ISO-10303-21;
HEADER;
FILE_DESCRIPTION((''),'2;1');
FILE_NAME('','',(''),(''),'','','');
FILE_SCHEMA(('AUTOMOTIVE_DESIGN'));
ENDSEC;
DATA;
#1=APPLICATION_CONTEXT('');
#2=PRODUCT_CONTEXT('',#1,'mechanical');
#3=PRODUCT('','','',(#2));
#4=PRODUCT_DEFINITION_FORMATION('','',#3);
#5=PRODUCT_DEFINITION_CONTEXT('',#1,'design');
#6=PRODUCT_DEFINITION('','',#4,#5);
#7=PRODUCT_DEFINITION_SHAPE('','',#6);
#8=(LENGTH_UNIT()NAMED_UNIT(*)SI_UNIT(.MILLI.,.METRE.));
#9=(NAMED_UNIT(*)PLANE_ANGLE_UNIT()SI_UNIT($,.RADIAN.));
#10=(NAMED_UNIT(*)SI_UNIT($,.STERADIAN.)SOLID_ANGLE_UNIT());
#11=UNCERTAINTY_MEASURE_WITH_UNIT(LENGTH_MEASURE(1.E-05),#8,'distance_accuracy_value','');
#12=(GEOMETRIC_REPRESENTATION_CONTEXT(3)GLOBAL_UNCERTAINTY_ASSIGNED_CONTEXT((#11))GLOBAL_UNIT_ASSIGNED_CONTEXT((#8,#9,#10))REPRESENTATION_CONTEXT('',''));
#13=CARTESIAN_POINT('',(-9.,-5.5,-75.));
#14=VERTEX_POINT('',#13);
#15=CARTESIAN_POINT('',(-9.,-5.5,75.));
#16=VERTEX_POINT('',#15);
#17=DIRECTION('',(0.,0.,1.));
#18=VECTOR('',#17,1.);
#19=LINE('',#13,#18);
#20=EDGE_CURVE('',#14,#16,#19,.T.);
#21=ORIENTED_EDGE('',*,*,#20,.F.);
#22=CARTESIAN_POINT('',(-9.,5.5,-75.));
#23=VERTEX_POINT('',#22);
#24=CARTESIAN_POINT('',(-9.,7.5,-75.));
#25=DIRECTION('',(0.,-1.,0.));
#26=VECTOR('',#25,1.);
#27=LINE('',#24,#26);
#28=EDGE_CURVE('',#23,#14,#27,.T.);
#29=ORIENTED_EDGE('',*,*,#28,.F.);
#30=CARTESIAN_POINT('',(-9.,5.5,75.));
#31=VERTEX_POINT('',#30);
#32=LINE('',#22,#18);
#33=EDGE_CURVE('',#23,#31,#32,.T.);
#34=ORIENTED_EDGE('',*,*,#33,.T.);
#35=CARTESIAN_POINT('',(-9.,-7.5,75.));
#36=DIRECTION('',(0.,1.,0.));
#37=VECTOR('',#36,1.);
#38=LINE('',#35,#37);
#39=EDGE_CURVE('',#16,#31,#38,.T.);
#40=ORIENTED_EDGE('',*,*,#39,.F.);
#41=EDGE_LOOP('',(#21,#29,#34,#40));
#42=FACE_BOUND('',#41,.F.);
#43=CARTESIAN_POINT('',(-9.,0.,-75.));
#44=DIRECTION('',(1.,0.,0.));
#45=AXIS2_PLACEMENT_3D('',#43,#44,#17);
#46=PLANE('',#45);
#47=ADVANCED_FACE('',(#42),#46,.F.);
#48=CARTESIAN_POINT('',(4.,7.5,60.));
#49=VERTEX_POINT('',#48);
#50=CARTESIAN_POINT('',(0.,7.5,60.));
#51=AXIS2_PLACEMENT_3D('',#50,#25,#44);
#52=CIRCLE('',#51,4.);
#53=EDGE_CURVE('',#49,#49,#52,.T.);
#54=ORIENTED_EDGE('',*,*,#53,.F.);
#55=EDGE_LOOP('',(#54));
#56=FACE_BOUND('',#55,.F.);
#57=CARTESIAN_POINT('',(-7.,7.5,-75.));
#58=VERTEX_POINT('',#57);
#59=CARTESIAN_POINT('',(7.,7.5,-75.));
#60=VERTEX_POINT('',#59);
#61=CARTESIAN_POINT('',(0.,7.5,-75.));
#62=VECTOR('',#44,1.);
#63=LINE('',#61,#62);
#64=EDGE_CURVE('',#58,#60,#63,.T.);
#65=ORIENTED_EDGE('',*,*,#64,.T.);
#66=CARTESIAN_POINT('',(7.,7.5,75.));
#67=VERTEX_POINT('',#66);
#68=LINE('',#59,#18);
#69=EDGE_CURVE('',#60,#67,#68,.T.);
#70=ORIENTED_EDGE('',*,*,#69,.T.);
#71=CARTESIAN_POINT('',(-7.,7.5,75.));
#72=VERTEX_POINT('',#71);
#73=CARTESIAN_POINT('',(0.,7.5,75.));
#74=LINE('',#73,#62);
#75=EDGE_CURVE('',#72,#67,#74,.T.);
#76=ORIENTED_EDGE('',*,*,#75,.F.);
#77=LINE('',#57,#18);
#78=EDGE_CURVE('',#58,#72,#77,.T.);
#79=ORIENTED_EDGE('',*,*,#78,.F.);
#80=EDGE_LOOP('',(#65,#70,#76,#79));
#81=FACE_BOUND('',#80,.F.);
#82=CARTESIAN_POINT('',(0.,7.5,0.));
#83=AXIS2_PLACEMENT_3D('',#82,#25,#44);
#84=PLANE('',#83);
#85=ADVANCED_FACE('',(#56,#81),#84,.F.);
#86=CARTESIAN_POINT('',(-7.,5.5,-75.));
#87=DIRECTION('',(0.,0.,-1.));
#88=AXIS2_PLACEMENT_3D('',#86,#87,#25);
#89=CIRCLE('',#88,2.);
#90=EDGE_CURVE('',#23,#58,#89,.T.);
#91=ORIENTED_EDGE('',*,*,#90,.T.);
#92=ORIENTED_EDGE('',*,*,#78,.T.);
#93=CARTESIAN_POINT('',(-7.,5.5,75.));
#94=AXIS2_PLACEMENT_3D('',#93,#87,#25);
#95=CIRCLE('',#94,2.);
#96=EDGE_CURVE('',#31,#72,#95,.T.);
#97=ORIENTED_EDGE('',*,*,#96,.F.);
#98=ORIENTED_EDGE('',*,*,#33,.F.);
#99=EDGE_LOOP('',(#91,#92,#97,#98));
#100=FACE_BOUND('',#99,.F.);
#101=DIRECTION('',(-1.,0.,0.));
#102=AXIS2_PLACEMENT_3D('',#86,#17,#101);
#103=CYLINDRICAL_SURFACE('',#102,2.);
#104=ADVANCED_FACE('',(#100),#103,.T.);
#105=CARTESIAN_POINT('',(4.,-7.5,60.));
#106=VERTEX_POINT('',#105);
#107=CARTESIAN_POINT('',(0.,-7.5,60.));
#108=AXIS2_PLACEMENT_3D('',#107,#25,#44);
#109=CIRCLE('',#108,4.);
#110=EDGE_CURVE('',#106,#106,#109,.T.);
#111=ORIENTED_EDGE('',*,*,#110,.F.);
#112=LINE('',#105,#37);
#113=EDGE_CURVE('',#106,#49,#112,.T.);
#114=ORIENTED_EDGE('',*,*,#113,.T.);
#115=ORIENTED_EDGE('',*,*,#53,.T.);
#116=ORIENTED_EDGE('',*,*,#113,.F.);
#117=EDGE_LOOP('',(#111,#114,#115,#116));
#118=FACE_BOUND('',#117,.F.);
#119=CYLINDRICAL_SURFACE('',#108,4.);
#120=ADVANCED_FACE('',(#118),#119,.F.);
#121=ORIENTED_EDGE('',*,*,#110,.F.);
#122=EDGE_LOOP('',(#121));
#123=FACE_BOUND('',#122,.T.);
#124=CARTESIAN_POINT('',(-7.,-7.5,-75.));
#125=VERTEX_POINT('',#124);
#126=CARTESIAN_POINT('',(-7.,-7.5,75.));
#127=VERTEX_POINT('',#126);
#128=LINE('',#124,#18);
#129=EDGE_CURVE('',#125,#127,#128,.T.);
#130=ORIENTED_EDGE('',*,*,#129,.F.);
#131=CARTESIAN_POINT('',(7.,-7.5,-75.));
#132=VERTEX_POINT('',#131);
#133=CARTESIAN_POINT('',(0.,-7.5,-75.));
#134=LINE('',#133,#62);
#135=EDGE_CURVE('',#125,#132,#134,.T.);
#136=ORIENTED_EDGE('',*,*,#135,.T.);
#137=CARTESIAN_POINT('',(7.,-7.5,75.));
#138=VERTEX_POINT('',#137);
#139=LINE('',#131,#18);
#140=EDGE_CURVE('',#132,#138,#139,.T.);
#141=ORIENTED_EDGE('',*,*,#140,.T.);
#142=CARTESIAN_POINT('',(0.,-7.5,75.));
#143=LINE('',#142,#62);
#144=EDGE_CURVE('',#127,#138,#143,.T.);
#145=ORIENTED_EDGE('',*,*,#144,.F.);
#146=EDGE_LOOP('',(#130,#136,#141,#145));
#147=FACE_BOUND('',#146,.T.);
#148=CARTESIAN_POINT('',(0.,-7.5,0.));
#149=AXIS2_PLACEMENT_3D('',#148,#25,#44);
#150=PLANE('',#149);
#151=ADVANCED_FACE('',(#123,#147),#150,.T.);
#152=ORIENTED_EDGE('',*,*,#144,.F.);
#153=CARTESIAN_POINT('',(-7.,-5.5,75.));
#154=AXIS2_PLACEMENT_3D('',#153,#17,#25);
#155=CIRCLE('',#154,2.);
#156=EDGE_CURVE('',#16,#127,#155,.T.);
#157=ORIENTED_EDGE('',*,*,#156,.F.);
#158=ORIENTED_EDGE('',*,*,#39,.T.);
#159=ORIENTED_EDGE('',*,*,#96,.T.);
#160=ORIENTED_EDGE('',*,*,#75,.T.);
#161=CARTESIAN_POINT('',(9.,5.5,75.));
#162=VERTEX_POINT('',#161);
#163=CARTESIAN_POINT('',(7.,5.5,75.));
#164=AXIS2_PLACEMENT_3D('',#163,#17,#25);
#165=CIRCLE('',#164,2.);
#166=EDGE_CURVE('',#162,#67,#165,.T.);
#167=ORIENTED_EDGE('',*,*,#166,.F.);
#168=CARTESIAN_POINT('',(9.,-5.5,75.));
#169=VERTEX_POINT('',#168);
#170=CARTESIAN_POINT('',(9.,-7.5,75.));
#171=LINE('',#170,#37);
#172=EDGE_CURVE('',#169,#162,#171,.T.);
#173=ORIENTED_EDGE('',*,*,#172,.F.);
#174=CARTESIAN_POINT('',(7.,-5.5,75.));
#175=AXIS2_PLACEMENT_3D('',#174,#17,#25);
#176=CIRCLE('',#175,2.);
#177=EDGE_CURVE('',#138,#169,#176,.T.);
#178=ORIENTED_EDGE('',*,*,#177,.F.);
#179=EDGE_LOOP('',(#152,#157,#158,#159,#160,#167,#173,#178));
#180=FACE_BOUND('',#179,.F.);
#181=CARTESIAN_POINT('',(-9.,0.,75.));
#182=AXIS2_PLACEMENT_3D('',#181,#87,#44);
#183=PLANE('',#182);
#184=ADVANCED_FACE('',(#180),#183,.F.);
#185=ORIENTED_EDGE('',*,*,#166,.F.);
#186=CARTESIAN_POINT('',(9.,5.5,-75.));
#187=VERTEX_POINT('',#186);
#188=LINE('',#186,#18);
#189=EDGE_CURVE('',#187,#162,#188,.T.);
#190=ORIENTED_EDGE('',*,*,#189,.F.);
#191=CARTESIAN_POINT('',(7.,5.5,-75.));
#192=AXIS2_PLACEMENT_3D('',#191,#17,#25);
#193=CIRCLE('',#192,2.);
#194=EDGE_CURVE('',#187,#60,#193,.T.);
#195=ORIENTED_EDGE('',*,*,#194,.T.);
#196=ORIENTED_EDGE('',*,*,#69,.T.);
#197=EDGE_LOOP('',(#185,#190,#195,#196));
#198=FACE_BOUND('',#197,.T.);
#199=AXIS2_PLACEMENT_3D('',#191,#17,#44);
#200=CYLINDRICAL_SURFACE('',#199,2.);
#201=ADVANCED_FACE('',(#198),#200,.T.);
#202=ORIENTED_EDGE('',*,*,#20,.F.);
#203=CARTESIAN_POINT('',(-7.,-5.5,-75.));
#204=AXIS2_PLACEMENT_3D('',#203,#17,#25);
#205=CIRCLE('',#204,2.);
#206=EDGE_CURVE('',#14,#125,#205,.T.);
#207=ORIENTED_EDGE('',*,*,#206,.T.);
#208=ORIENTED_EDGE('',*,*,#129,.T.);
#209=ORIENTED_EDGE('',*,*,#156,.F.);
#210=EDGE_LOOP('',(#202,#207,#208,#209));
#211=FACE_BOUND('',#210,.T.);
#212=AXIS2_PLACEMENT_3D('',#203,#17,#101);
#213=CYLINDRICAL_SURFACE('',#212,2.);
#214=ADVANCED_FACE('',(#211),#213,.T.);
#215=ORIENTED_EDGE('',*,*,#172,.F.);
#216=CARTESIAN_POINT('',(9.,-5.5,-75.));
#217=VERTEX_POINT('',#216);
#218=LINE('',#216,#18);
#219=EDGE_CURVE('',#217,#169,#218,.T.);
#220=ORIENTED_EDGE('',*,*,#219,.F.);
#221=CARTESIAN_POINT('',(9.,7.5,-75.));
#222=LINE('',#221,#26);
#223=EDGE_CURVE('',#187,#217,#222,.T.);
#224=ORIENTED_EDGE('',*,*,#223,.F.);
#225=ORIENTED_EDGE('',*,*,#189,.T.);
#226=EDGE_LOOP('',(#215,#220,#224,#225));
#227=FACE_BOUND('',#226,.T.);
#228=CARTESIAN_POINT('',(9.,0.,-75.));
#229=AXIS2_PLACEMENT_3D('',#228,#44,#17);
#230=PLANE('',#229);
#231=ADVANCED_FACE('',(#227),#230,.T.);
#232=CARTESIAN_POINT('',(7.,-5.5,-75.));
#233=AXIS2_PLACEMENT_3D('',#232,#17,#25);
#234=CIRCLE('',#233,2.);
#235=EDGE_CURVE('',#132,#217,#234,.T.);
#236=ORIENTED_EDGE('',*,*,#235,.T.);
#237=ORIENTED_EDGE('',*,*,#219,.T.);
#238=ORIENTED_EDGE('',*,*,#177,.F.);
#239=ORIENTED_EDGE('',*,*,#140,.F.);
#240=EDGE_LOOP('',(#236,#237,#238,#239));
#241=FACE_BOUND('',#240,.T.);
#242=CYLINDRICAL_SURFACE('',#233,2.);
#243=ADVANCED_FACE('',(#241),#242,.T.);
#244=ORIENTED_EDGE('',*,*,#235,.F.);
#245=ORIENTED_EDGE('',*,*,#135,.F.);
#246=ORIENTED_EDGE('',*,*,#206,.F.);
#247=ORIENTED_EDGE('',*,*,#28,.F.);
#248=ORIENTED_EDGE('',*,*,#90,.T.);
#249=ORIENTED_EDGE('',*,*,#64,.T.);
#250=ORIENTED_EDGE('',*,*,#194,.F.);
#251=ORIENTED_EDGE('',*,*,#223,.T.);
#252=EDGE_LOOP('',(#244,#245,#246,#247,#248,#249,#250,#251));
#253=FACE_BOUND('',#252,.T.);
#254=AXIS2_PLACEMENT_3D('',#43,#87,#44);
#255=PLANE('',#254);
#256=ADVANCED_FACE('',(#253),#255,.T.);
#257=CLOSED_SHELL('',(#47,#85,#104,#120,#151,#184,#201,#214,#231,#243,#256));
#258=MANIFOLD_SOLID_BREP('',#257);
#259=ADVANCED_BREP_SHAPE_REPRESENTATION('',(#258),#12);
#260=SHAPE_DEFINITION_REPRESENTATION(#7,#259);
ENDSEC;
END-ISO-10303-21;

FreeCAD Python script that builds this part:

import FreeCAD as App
import Part
import Sketcher
from FreeCAD import Vector
Q = App.Units.Quantity


def edges_at(feature, points):
    """Names of the edges that pass closest to the given points."""
    edges = feature.Shape.Edges
    near = lambda p: min(range(len(edges)), key=lambda i: edges[i].distToShape(Part.Vertex(*p))[0])
    return sorted({f"Edge{near(p) + 1}" for p in points})


def add_polygon(sketch, points):
    """Adds a closed chain of lines whose ends are joined by coincident constraints."""
    first, n = sketch.GeometryCount, len(points)
    for a, b in zip(points, points[1:] + points[:1]):
        sketch.addGeometry(Part.LineSegment(App.Vector(*a, 0), App.Vector(*b, 0)), False)
    for i in range(n):
        sketch.addConstraint(Sketcher.Constraint("Coincident", first + i, 2, first + (i + 1) % n, 1))

doc = App.newDocument("Part")
params = doc.addObject("Spreadsheet::Sheet", "Params")
for row, (alias, value) in enumerate([
    ("sketch1_width", "18 mm"),
    ("sketch1_height", "150 mm"),
    ("pad1_length", "15 mm"),
    ("fillet_radius", "2 mm"),
    ("sketch2_diameter", "8 mm"),
    ("pocket1_length", "25.4 mm"),
], start=1):
    params.set(f"A{row}", alias)
    params.set(f"B{row}", "=" + value)
    params.setAlias(f"B{row}", alias)

body = doc.addObject("PartDesign::Body", "Body")

sketch1 = body.newObject("Sketcher::SketchObject", "Sketch")
sketch1.AttachmentSupport = (doc.getObject("XZ_Plane"), [""])
sketch1.MapMode = "FlatFace"
add_polygon(sketch1, [(-9, 75), (-9, -75), (9, -75), (9, 75)])
sketch1.addConstraint([
    Sketcher.Constraint("Vertical", 0),
    Sketcher.Constraint("Horizontal", 1),
    Sketcher.Constraint("Vertical", 2),
    Sketcher.Constraint("Horizontal", 3),
    Sketcher.Constraint("Symmetric", 0, 2, 2, 2, -1, 1),
    Sketcher.Constraint("DistanceX", 1, 1, 1, 2, Q("18 mm")),
    Sketcher.Constraint("DistanceY", 0, 2, 0, 1, Q("150 mm")),
])
sketch1.setExpression("Constraints[9]", "Params.sketch1_width")
sketch1.setExpression("Constraints[10]", "Params.sketch1_height")
pad1 = body.newObject("PartDesign::Pad", "Pad")
pad1.Profile = sketch1
pad1.setExpression("Length", "Params.pad1_length")
pad1.Midplane = True
doc.recompute()

fillet = body.newObject("PartDesign::Fillet", "Fillet")
fillet.Base = (pad1, edges_at(pad1, [
    (-9, -7.5, 0),
    (9, -7.5, 0),
    (9, 7.5, 0),
    (-9, 7.5, 0),
]))
fillet.setExpression("Radius", "Params.fillet_radius")

sketch2 = body.newObject("Sketcher::SketchObject", "Sketch001")
sketch2.AttachmentSupport = (doc.getObject("XZ_Plane"), [""])
sketch2.MapMode = "FlatFace"
sketch2.AttachmentOffset = App.Placement(Vector(0, 0, 7.5), App.Rotation())
sketch2.addGeometry(Part.Circle(Vector(0, 60, 0), Vector(0, 0, 1), 4), False)
sketch2.addConstraint([
    Sketcher.Constraint("PointOnObject", 0, 3, -2),
    Sketcher.Constraint("Diameter", 0, Q("8 mm")),
    Sketcher.Constraint("DistanceY", -1, 1, 0, 3, Q("60 mm")),
])
sketch2.setExpression("Constraints[1]", "Params.sketch2_diameter")
pocket1 = body.newObject("PartDesign::Pocket", "Pocket")
pocket1.Profile = sketch2
pocket1.setExpression("Length", "Params.pocket1_length")

doc.recompute()
